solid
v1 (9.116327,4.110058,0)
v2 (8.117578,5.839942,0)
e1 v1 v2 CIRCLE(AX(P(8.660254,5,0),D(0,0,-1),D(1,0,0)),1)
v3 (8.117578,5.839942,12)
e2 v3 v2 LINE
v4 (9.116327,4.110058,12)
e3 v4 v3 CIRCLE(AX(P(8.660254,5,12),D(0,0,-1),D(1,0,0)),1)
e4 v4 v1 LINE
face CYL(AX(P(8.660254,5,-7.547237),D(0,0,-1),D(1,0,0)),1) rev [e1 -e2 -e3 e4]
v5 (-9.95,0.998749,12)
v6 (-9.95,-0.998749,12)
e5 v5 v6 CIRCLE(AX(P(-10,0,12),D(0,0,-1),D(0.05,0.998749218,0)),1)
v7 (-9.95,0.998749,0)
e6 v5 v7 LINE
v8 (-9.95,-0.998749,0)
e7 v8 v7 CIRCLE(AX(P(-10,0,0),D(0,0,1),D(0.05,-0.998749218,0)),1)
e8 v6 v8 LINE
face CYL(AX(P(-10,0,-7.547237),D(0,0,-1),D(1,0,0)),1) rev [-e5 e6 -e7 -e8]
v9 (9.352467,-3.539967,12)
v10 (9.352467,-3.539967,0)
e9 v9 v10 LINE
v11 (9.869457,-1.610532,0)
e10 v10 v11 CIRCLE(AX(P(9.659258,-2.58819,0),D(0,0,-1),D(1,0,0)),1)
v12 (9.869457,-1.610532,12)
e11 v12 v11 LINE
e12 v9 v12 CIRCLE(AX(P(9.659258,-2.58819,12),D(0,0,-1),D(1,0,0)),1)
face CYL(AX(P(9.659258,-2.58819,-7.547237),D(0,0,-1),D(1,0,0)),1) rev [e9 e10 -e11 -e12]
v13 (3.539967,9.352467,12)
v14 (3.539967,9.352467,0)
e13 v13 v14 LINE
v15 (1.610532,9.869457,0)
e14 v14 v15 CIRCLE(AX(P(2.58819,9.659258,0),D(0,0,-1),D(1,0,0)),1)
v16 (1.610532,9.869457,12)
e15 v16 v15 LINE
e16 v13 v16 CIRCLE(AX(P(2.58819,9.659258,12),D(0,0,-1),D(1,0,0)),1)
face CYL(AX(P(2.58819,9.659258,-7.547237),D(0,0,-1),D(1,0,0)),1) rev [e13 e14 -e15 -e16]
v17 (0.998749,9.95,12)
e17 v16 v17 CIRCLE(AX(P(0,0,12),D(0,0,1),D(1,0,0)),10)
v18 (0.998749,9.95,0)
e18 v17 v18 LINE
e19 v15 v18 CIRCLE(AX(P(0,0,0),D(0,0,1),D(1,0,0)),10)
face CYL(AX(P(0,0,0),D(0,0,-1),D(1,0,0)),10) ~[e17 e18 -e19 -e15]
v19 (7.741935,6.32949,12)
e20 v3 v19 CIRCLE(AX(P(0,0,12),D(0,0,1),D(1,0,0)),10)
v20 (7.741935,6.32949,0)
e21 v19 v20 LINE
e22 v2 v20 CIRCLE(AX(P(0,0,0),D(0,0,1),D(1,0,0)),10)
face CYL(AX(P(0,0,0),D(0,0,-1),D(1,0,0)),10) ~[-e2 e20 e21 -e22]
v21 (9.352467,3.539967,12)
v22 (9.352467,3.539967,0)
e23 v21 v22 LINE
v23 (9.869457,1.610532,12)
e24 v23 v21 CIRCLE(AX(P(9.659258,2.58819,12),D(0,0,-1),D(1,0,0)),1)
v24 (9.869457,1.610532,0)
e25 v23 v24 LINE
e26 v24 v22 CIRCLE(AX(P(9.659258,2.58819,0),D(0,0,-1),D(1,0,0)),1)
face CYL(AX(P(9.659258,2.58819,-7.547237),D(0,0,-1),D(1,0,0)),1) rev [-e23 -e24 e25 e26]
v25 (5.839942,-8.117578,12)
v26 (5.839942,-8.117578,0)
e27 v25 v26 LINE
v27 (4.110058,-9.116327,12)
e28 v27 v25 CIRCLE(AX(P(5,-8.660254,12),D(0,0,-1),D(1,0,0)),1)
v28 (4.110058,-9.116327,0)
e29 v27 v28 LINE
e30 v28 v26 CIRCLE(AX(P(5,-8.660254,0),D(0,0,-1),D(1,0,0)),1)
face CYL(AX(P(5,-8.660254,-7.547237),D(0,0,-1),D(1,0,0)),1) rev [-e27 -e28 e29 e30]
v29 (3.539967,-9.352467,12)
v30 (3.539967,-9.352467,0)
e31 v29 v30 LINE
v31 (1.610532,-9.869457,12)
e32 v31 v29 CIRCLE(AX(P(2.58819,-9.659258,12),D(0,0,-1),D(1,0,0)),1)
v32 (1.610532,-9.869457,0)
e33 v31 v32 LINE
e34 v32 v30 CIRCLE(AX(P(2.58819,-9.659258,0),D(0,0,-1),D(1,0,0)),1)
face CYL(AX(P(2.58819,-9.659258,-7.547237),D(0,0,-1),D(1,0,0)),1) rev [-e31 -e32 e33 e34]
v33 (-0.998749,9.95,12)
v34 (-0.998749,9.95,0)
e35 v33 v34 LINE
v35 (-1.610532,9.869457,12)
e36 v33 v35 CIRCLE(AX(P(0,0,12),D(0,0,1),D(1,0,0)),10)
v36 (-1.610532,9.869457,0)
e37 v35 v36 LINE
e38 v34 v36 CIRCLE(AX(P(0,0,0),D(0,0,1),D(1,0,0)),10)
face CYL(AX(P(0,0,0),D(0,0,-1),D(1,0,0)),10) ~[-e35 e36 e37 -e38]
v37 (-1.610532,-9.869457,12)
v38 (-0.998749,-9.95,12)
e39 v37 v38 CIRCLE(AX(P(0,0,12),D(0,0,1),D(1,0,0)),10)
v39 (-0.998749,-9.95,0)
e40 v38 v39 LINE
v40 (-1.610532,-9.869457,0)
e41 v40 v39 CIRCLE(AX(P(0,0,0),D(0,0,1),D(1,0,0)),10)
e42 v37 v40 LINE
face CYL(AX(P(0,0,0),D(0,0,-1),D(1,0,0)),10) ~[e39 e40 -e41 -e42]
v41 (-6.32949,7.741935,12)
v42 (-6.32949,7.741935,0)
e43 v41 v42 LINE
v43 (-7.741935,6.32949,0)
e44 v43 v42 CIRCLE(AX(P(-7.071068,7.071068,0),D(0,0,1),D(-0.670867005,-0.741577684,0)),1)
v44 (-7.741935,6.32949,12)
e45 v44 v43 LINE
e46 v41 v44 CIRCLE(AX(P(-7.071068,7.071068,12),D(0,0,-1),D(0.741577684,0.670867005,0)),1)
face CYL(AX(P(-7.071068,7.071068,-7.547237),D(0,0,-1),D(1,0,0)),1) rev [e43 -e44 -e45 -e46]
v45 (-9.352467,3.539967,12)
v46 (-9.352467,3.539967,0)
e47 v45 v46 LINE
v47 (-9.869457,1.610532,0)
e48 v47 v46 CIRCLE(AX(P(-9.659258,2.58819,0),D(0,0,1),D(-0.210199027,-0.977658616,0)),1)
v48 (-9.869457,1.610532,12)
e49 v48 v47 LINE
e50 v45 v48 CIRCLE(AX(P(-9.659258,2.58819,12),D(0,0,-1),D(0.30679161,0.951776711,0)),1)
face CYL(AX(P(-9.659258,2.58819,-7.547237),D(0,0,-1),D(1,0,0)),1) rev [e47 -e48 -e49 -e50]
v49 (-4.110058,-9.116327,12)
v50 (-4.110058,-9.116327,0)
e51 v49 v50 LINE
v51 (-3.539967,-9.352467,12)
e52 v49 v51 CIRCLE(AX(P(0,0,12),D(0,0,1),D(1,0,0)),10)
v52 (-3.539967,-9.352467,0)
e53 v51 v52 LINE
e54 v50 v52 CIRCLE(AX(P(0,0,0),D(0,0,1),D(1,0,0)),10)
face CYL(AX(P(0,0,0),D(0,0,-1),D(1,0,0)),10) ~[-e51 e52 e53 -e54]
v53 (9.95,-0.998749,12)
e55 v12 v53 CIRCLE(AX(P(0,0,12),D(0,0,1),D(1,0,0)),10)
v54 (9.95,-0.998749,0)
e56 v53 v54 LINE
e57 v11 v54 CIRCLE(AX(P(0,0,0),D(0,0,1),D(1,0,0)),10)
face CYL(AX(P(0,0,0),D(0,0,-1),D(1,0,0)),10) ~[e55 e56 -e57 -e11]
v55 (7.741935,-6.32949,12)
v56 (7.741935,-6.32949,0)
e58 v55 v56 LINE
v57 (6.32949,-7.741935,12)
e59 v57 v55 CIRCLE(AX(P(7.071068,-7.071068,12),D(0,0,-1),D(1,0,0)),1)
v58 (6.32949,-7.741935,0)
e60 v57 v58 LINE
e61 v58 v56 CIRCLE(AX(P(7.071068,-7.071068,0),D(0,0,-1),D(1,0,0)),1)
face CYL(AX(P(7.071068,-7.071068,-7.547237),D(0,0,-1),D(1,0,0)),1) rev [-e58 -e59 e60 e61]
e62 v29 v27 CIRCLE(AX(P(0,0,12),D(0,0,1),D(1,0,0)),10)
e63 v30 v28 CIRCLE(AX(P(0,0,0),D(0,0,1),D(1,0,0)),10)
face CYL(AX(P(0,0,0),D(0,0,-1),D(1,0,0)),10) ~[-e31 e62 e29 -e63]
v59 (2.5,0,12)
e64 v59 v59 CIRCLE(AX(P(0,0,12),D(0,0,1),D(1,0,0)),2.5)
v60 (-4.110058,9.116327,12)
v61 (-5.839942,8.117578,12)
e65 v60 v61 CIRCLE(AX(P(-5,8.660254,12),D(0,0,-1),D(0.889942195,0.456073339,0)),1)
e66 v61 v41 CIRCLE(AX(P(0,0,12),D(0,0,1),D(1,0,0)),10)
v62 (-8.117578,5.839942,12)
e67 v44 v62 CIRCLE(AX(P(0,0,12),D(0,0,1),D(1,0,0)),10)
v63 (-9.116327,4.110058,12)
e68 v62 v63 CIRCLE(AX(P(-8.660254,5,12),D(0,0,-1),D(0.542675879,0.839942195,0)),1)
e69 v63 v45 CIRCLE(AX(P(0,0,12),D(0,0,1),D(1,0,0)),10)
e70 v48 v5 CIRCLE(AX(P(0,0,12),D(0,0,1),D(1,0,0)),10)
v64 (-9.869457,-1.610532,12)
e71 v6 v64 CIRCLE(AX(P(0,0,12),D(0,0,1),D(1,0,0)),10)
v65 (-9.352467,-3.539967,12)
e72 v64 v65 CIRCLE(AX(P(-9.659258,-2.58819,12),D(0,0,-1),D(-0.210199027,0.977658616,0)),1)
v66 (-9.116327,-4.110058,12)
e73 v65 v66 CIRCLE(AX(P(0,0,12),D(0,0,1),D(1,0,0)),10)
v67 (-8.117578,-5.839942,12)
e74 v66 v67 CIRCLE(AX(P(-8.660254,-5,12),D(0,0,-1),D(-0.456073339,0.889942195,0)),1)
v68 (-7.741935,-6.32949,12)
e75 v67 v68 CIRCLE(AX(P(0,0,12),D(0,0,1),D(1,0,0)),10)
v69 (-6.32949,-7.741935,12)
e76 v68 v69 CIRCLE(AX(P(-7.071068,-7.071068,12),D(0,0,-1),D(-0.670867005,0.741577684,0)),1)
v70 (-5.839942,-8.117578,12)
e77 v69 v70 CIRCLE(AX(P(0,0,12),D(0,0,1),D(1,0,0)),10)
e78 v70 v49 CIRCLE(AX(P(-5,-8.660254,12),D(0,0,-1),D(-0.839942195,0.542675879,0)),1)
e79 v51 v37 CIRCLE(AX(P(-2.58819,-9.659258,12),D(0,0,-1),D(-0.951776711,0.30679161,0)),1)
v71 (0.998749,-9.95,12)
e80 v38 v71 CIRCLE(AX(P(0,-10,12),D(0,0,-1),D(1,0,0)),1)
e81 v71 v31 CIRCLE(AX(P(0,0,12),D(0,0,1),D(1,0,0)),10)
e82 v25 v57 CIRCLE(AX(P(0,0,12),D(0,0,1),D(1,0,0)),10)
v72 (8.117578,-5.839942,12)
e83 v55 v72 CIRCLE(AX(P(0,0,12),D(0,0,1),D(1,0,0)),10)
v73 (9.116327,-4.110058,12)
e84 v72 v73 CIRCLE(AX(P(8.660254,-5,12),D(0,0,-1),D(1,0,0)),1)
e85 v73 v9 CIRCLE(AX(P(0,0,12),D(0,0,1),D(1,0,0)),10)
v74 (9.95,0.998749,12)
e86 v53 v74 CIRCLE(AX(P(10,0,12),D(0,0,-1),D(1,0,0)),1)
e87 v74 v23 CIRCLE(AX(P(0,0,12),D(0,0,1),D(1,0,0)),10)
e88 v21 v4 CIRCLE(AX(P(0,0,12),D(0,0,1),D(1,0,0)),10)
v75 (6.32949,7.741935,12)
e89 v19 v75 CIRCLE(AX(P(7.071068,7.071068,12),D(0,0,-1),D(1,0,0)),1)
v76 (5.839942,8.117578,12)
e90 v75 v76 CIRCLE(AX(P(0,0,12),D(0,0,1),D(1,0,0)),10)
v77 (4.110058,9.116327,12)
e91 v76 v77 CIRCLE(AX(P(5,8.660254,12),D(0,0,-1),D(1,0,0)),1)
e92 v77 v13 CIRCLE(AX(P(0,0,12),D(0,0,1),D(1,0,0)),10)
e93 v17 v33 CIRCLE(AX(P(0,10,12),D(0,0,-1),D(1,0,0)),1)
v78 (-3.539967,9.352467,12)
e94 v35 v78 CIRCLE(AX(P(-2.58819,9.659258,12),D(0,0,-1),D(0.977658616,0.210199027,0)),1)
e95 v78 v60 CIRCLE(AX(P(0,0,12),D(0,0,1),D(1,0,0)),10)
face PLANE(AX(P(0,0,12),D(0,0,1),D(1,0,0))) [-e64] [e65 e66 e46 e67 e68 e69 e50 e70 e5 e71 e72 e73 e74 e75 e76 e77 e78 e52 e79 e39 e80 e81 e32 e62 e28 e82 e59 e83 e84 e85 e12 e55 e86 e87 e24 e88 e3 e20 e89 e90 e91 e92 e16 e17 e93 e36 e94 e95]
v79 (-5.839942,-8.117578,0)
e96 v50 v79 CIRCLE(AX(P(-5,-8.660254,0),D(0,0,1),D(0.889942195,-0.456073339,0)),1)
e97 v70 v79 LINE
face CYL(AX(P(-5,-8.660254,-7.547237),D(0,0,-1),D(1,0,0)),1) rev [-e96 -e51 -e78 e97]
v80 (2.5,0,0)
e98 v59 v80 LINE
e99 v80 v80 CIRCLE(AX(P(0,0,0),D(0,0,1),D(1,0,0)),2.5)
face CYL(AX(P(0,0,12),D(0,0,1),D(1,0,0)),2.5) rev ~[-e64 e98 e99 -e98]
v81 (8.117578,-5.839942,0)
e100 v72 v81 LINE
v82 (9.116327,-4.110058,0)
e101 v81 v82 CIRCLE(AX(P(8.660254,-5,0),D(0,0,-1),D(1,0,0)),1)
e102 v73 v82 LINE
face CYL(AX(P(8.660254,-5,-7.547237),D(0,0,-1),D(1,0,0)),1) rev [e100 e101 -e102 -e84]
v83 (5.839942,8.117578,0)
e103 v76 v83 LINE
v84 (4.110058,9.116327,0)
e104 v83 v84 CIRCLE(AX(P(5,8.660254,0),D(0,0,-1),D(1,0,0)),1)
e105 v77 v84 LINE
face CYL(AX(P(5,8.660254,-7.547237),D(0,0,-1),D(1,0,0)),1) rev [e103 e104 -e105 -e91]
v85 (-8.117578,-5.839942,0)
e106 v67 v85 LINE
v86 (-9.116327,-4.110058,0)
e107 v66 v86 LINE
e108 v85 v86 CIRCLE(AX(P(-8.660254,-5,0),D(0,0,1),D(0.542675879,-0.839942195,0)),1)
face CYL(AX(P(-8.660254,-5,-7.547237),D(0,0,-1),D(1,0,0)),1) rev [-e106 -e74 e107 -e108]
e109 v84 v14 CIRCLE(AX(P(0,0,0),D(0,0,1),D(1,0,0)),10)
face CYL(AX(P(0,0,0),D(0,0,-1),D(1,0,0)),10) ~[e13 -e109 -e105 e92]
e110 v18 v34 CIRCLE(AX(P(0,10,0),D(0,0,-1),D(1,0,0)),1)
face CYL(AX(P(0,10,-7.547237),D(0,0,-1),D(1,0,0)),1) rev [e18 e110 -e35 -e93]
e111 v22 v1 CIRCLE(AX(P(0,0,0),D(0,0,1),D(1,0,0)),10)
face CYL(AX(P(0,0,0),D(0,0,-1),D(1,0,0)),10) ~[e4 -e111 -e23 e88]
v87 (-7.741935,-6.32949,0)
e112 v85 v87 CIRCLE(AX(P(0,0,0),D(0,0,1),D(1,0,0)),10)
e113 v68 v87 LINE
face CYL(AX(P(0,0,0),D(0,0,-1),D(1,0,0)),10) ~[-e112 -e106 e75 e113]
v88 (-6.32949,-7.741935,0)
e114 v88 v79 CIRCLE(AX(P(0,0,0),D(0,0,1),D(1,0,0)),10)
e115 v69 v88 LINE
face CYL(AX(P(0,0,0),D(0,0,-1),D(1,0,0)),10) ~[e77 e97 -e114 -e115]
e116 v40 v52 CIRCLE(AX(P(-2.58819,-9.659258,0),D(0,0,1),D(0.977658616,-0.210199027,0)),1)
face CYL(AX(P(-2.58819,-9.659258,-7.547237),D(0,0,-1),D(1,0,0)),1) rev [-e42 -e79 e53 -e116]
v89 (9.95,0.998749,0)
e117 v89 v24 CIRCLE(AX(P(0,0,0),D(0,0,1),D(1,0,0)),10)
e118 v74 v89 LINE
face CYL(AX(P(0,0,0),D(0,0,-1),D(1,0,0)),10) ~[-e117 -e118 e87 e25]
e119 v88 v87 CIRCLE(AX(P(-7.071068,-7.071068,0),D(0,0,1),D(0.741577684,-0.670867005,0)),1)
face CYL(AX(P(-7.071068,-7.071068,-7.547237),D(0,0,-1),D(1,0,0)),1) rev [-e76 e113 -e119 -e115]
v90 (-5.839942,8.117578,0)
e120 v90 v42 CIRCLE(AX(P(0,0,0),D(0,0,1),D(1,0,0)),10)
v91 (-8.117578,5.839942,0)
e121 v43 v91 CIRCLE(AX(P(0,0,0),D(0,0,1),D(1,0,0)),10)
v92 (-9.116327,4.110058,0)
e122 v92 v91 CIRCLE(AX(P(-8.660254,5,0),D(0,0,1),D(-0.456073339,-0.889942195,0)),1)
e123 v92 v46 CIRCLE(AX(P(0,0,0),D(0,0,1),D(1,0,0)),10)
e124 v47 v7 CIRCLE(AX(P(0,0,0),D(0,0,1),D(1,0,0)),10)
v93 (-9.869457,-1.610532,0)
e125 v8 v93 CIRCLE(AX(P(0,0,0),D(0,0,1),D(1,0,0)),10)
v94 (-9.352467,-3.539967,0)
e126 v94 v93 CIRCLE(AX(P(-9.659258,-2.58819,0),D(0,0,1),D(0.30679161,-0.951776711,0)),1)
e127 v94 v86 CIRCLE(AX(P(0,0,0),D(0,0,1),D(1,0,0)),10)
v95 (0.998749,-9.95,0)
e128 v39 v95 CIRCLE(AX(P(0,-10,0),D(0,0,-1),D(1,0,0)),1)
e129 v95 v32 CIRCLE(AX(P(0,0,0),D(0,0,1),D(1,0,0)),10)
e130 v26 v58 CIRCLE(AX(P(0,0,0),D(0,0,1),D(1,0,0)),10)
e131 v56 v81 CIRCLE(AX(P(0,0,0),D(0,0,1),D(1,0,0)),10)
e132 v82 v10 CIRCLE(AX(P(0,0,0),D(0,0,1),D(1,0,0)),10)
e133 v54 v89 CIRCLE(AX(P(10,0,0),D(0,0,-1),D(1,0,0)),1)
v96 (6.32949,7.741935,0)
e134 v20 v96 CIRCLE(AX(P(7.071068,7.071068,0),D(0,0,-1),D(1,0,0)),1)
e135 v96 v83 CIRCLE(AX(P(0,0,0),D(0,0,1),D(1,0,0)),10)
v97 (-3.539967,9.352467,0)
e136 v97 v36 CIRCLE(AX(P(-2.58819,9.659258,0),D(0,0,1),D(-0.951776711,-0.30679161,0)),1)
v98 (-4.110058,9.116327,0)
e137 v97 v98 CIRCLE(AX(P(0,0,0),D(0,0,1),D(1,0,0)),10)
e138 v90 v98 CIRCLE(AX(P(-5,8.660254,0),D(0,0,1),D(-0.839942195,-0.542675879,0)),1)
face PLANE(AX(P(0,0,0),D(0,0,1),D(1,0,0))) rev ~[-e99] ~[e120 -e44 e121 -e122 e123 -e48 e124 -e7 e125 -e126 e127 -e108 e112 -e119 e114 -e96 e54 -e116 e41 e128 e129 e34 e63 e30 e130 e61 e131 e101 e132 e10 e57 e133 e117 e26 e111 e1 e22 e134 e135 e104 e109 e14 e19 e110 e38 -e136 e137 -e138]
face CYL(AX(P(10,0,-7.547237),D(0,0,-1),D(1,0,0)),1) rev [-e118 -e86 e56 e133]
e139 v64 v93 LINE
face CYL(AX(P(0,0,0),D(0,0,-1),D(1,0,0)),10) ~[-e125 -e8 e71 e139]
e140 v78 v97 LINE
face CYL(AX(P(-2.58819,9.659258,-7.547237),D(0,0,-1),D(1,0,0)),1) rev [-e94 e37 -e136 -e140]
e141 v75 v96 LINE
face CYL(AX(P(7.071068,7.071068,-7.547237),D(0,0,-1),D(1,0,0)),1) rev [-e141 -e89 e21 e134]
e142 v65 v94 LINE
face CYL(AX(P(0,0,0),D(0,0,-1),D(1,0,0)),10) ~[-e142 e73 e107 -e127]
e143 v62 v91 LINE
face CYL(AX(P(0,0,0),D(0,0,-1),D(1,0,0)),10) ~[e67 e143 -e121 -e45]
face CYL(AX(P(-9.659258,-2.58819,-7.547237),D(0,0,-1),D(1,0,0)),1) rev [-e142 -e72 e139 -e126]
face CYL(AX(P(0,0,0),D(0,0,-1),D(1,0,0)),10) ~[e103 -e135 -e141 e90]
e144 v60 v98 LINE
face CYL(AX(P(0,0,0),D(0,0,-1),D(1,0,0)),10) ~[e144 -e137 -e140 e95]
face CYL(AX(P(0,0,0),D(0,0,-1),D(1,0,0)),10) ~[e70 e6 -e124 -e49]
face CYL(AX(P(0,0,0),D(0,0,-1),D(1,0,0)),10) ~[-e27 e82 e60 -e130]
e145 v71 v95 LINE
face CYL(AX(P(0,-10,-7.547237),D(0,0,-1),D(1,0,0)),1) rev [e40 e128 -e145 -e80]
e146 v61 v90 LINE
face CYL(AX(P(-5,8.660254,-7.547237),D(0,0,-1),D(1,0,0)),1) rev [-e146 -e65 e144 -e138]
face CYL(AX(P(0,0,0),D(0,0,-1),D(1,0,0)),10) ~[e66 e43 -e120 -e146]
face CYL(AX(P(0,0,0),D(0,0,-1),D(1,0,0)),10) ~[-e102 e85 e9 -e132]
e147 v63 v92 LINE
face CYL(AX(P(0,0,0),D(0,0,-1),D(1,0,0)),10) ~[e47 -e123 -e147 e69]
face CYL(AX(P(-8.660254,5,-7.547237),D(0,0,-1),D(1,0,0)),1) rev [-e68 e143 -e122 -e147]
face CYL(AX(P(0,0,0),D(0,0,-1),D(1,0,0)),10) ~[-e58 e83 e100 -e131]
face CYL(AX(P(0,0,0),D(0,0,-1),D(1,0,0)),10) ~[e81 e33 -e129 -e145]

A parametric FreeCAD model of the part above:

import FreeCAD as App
import Part
import Sketcher

doc = App.newDocument("Part")
body = doc.addObject("PartDesign::Body", "Body")

sketch1 = body.newObject("Sketcher::SketchObject", "Sketch")
sketch1.AttachmentSupport = (doc.getObject("XY_Plane"), [""])
sketch1.MapMode = "FlatFace"
sketch1.addGeometry(Part.Circle(App.Vector(0, 0, 0), App.Vector(0, 0, 1), 10), False)
sketch1.addConstraint([
    Sketcher.Constraint("Coincident", 0, 3, -1, 1),
    Sketcher.Constraint("Diameter", 0, 20.0),
])
pad1 = body.newObject("PartDesign::Pad", "Pad")
pad1.Profile = sketch1
pad1.Length = 12

sketch2 = body.newObject("Sketcher::SketchObject", "Sketch001")
sketch2.AttachmentSupport = (doc.getObject("XY_Plane"), [""])
sketch2.MapMode = "FlatFace"
sketch2.AttachmentOffset = App.Placement(App.Vector(0, 0, 12), App.Rotation())
sketch2.addGeometry([
    Part.Circle(App.Vector(0, 10, 0), App.Vector(0, 0, 1), 1),
    Part.Circle(App.Vector(2.6, 9.7, 0), App.Vector(0, 0, 1), 1),
    Part.Circle(App.Vector(5, 8.7, 0), App.Vector(0, 0, 1), 1),
    Part.Circle(App.Vector(7.1, 7.1, 0), App.Vector(0, 0, 1), 1),
    Part.Circle(App.Vector(8.7, 5, 0), App.Vector(0, 0, 1), 1),
    Part.Circle(App.Vector(9.7, 2.6, 0), App.Vector(0, 0, 1), 1),
    Part.Circle(App.Vector(10, 0, 0), App.Vector(0, 0, 1), 1),
    Part.Circle(App.Vector(9.7, -2.6, 0), App.Vector(0, 0, 1), 1),
    Part.Circle(App.Vector(8.7, -5, 0), App.Vector(0, 0, 1), 1),
    Part.Circle(App.Vector(7.1, -7.1, 0), App.Vector(0, 0, 1), 1),
    Part.Circle(App.Vector(5, -8.7, 0), App.Vector(0, 0, 1), 1),
    Part.Circle(App.Vector(2.6, -9.7, 0), App.Vector(0, 0, 1), 1),
    Part.Circle(App.Vector(0, -10, 0), App.Vector(0, 0, 1), 1),
    Part.Circle(App.Vector(-2.6, -9.7, 0), App.Vector(0, 0, 1), 1),
    Part.Circle(App.Vector(-5, -8.7, 0), App.Vector(0, 0, 1), 1),
    Part.Circle(App.Vector(-7.1, -7.1, 0), App.Vector(0, 0, 1), 1),
    Part.Circle(App.Vector(-8.7, -5, 0), App.Vector(0, 0, 1), 1),
    Part.Circle(App.Vector(-9.7, -2.6, 0), App.Vector(0, 0, 1), 1),
    Part.Circle(App.Vector(-10, 0, 0), App.Vector(0, 0, 1), 1),
    Part.Circle(App.Vector(-9.7, 2.6, 0), App.Vector(0, 0, 1), 1),
    Part.Circle(App.Vector(-8.7, 5, 0), App.Vector(0, 0, 1), 1),
    Part.Circle(App.Vector(-7.1, 7.1, 0), App.Vector(0, 0, 1), 1),
    Part.Circle(App.Vector(-5, 8.7, 0), App.Vector(0, 0, 1), 1),
    Part.Circle(App.Vector(-2.6, 9.7, 0), App.Vector(0, 0, 1), 1),
], False)
sketch2.addConstraint([
    Sketcher.Constraint("Equal", 0, 1),
    Sketcher.Constraint("Equal", 1, 2),
    Sketcher.Constraint("Equal", 2, 3),
    Sketcher.Constraint("Equal", 3, 4),
    Sketcher.Constraint("Equal", 4, 5),
    Sketcher.Constraint("Equal", 5, 6),
    Sketcher.Constraint("Equal", 6, 7),
    Sketcher.Constraint("Equal", 7, 8),
    Sketcher.Constraint("Equal", 8, 9),
    Sketcher.Constraint("Equal", 9, 10),
    Sketcher.Constraint("Equal", 10, 11),
    Sketcher.Constraint("Equal", 11, 12),
    Sketcher.Constraint("Equal", 12, 13),
    Sketcher.Constraint("Equal", 13, 14),
    Sketcher.Constraint("Equal", 14, 15),
    Sketcher.Constraint("Equal", 15, 16),
    Sketcher.Constraint("Equal", 16, 17),
    Sketcher.Constraint("Equal", 17, 18),
    Sketcher.Constraint("Equal", 18, 19),
    Sketcher.Constraint("Equal", 19, 20),
    Sketcher.Constraint("Equal", 20, 21),
    Sketcher.Constraint("Equal", 21, 22),
    Sketcher.Constraint("Equal", 22, 23),
    Sketcher.Constraint("Symmetric", 0, 3, 12, 3, -1, 1),
    Sketcher.Constraint("Symmetric", 1, 3, 13, 3, -1, 1),
    Sketcher.Constraint("Symmetric", 2, 3, 14, 3, -1, 1),
    Sketcher.Constraint("Symmetric", 3, 3, 15, 3, -1, 1),
    Sketcher.Constraint("Symmetric", 4, 3, 16, 3, -1, 1),
    Sketcher.Constraint("Symmetric", 5, 3, 17, 3, -1, 1),
    Sketcher.Constraint("Symmetric", 6, 3, 18, 3, -1, 1),
    Sketcher.Constraint("Symmetric", 7, 3, 19, 3, -1, 1),
    Sketcher.Constraint("Symmetric", 8, 3, 20, 3, -1, 1),
    Sketcher.Constraint("Symmetric", 9, 3, 21, 3, -1, 1),
    Sketcher.Constraint("Symmetric", 10, 3, 22, 3, -1, 1),
    Sketcher.Constraint("Symmetric", 11, 3, 23, 3, -1, 1),
    Sketcher.Constraint("Symmetric", 11, 3, 13, 3, -2),
    Sketcher.Constraint("Symmetric", 10, 3, 14, 3, -2),
    Sketcher.Constraint("Symmetric", 9, 3, 15, 3, -2),
    Sketcher.Constraint("Symmetric", 8, 3, 16, 3, -2),
    Sketcher.Constraint("Symmetric", 7, 3, 17, 3, -2),
    Sketcher.Constraint("PointOnObject", 0, 3, -2),
    Sketcher.Constraint("PointOnObject", 6, 3, -1),
    Sketcher.Constraint("Diameter", 0, 2.0),
    Sketcher.Constraint("DistanceY", -1, 1, 0, 3, 10.0),
    Sketcher.Constraint("DistanceX", -1, 1, 2, 3, 5.0),
    Sketcher.Constraint("DistanceY", -1, 1, 4, 3, 5.0),
    Sketcher.Constraint("DistanceX", -1, 1, 6, 3, 10.0),
    Sketcher.Constraint("DistanceX", -1, 1, 1, 3, 2.58819),
    Sketcher.Constraint("DistanceY", -1, 1, 1, 3, 9.659258),
    Sketcher.Constraint("DistanceX", -1, 1, 5, 3, 9.659258),
    Sketcher.Constraint("DistanceY", -1, 1, 5, 3, 2.58819),
    Sketcher.Constraint("DistanceY", 3, 3, 1, 3, 2.58819),
    Sketcher.Constraint("DistanceX", 3, 3, 5, 3, 2.58819),
    Sketcher.Constraint("DistanceY", -1, 1, 2, 3, 8.660254),
    Sketcher.Constraint("DistanceX", -1, 1, 4, 3, 8.660254),
])
pocket1 = body.newObject("PartDesign::Pocket", "Pocket")
pocket1.Profile = sketch2
pocket1.Type = "ThroughAll"
pocket1.Midplane = True

sketch3 = body.newObject("Sketcher::SketchObject", "Sketch002")
sketch3.AttachmentSupport = (doc.getObject("XY_Plane"), [""])
sketch3.MapMode = "FlatFace"
sketch3.AttachmentOffset = App.Placement(App.Vector(0, 0, 12), App.Rotation())
sketch3.addGeometry(Part.Circle(App.Vector(0, 0, 0), App.Vector(0, 0, 1), 2.5), False)
sketch3.addConstraint([
    Sketcher.Constraint("Coincident", 0, 3, -1, 1),
    Sketcher.Constraint("Diameter", 0, 5.0),
])
pocket2 = body.newObject("PartDesign::Pocket", "Pocket001")
pocket2.Profile = sketch3
pocket2.Type = "ThroughAll"

doc.recompute()
